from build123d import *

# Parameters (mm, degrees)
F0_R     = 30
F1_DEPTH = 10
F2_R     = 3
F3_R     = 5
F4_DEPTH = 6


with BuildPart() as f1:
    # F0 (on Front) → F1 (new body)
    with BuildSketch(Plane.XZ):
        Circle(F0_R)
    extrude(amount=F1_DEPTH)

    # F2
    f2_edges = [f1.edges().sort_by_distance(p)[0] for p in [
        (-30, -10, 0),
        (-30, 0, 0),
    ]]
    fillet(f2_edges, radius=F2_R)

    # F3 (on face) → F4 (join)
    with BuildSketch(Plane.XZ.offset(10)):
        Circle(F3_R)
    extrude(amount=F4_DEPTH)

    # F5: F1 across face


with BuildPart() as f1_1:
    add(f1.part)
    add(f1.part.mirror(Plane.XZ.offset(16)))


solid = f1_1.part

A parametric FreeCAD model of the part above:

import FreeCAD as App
import Part
import Sketcher
Q = App.Units.Quantity


def edges_at(feature, points):
    """Names of the edges that pass closest to the given points."""
    edges = feature.Shape.Edges
    near = lambda p: min(range(len(edges)), key=lambda i: edges[i].distToShape(Part.Vertex(*p))[0])
    return sorted({f"Edge{near(p) + 1}" for p in points})

doc = App.newDocument("Part")
body = doc.addObject("PartDesign::Body", "Body")

# Sketch on XZ plane
sketch1 = doc.addObject("Sketcher::SketchObject", "Sketch")
body.addObject(sketch1)
sketch1.AttachmentSupport = (doc.XZ_Plane, [""])
sketch1.MapMode = "FlatFace"
sketch1.addGeometry(Part.Circle(App.Vector(0, 0, 0), App.Vector(0, 0, 1), 30), False)
sketch1.addConstraint(Sketcher.Constraint("Coincident", 0, 3, -1, 1))
sketch1.addConstraint(Sketcher.Constraint("Diameter", 0, Q("60 mm")))
pad1 = doc.addObject("PartDesign::Pad", "Pad")
body.addObject(pad1)
pad1.Profile = sketch1
pad1.Length = 10
doc.recompute()

fillet = doc.addObject("PartDesign::Fillet", "Fillet")
body.addObject(fillet)
fillet.Base = (pad1, edges_at(pad1, [(-30, -10, 0), (-30, 0, 0)]))
fillet.Radius = 3

# Sketch on XZ plane
sketch2 = doc.addObject("Sketcher::SketchObject", "Sketch001")
body.addObject(sketch2)
sketch2.AttachmentSupport = (doc.XZ_Plane, [""])
sketch2.MapMode = "FlatFace"
sketch2.AttachmentOffset = App.Placement(App.Vector(0, 0, 10), App.Rotation())
sketch2.addGeometry(Part.Circle(App.Vector(0, 0, 0), App.Vector(0, 0, 1), 5), False)
sketch2.addConstraint(Sketcher.Constraint("Coincident", 0, 3, -1, 1))
sketch2.addConstraint(Sketcher.Constraint("Diameter", 0, Q("10 mm")))
pad2 = doc.addObject("PartDesign::Pad", "Pad001")
body.addObject(pad2)
pad2.Profile = sketch2
pad2.Length = 6
body2 = doc.addObject("PartDesign::Body", "Body001")
doc.recompute()

body2.BaseFeature = body
doc.recompute()

mirroring = doc.addObject("Part::Mirroring", "Mirroring")
mirroring.Source = body
mirroring.Base = App.Vector(0, -16, 0)
mirroring.Normal = App.Vector(0, -1, 0)
body3 = doc.addObject("PartDesign::Body", "Body002")
body3.BaseFeature = mirroring
boolean = doc.addObject("PartDesign::Boolean", "Boolean")
body2.addObject(boolean)
boolean.Type = "Fuse"
boolean.addObjects([body3])
doc.recompute()
mirroring.Visibility = False

doc.recompute()
